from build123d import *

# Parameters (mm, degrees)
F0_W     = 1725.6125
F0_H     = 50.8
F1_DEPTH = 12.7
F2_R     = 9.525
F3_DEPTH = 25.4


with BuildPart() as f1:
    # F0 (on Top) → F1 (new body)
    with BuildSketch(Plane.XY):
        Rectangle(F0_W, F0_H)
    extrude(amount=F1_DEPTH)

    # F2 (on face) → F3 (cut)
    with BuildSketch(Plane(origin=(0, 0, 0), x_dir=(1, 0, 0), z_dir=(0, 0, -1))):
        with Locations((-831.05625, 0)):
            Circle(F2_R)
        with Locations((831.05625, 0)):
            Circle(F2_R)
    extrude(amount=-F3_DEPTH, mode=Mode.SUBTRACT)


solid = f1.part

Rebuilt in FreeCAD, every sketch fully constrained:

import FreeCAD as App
import Part
import Sketcher

V = App.Vector
Q = App.Units.Quantity


def add_polygon(sketch, points):
    """Adds a closed chain of lines whose ends are joined by coincident constraints."""
    first, n = sketch.GeometryCount, len(points)
    for a, b in zip(points, points[1:] + points[:1]):
        sketch.addGeometry(Part.LineSegment(App.Vector(*a, 0), App.Vector(*b, 0)), False)
    for i in range(n):
        sketch.addConstraint(Sketcher.Constraint("Coincident", first + i, 2, first + (i + 1) % n, 1))

doc = App.newDocument("Part")
params = doc.addObject("Spreadsheet::Sheet", "Params")
for row, (alias, value) in enumerate([
    ("sketch1_height", "2 in"),
    ("sketch1_width", "67.9375 in"),
    ("pad1_length", "0.5 in"),
    ("sketch2_diameter", "0.75 in"),
    ("pocket1_length", "1 in"),
], start=1):
    params.set(f"A{row}", alias)
    params.set(f"B{row}", "=" + value)
    params.setAlias(f"B{row}", alias)

body = doc.addObject("PartDesign::Body", "Body")

sketch1 = doc.addObject("Sketcher::SketchObject", "Sketch")
body.addObject(sketch1)
sketch1.AttachmentSupport = (doc.XY_Plane, [""])
sketch1.MapMode = "FlatFace"
add_polygon(sketch1, [(-862.80625, 25.4), (-862.80625, -25.4), (862.80625, -25.4), (862.80625, 25.4)])
sketch1.addConstraint([
    Sketcher.Constraint("Vertical", 0),
    Sketcher.Constraint("Horizontal", 1),
    Sketcher.Constraint("Vertical", 2),
    Sketcher.Constraint("Horizontal", 3),
    Sketcher.Constraint("Symmetric", 0, 2, 2, 2, -1, 1),
    Sketcher.Constraint("DistanceY", 0, 2, 0, 1, Q("2 in")),
    Sketcher.Constraint("DistanceX", 1, 1, 1, 2, Q("67.9375 in")),
])
sketch1.setExpression("Constraints[9]", "Params.sketch1_height")
sketch1.setExpression("Constraints[10]", "Params.sketch1_width")
pad1 = doc.addObject("PartDesign::Pad", "Pad")
body.addObject(pad1)
pad1.Profile = sketch1
pad1.setExpression("Length", "Params.pad1_length")

sketch2 = doc.addObject("Sketcher::SketchObject", "Sketch001")
body.addObject(sketch2)
sketch2.AttachmentSupport = (doc.XY_Plane, [""])
sketch2.MapMode = "FlatFace"
sketch2.addGeometry([
    Part.Circle(V(-831.05625, 0, 0), V(0, 0, 1), 9.525),
    Part.Circle(V(831.05625, 0, 0), V(0, 0, 1), 9.525),
], False)
sketch2.addConstraint([
    Sketcher.Constraint("Equal", 0, 1),
    Sketcher.Constraint("Symmetric", 0, 3, 1, 3, -1, 1),
    Sketcher.Constraint("PointOnObject", 0, 3, -1),
    Sketcher.Constraint("Diameter", 0, Q("0.75 in")),
    Sketcher.Constraint("DistanceX", 0, 3, -1, 1, Q("32.71875 in")),
])
sketch2.setExpression("Constraints[3]", "Params.sketch2_diameter")
pocket1 = doc.addObject("PartDesign::Pocket", "Pocket")
body.addObject(pocket1)
pocket1.Profile = sketch2
pocket1.setExpression("Length", "Params.pocket1_length")
pocket1.Reversed = True

doc.recompute()
